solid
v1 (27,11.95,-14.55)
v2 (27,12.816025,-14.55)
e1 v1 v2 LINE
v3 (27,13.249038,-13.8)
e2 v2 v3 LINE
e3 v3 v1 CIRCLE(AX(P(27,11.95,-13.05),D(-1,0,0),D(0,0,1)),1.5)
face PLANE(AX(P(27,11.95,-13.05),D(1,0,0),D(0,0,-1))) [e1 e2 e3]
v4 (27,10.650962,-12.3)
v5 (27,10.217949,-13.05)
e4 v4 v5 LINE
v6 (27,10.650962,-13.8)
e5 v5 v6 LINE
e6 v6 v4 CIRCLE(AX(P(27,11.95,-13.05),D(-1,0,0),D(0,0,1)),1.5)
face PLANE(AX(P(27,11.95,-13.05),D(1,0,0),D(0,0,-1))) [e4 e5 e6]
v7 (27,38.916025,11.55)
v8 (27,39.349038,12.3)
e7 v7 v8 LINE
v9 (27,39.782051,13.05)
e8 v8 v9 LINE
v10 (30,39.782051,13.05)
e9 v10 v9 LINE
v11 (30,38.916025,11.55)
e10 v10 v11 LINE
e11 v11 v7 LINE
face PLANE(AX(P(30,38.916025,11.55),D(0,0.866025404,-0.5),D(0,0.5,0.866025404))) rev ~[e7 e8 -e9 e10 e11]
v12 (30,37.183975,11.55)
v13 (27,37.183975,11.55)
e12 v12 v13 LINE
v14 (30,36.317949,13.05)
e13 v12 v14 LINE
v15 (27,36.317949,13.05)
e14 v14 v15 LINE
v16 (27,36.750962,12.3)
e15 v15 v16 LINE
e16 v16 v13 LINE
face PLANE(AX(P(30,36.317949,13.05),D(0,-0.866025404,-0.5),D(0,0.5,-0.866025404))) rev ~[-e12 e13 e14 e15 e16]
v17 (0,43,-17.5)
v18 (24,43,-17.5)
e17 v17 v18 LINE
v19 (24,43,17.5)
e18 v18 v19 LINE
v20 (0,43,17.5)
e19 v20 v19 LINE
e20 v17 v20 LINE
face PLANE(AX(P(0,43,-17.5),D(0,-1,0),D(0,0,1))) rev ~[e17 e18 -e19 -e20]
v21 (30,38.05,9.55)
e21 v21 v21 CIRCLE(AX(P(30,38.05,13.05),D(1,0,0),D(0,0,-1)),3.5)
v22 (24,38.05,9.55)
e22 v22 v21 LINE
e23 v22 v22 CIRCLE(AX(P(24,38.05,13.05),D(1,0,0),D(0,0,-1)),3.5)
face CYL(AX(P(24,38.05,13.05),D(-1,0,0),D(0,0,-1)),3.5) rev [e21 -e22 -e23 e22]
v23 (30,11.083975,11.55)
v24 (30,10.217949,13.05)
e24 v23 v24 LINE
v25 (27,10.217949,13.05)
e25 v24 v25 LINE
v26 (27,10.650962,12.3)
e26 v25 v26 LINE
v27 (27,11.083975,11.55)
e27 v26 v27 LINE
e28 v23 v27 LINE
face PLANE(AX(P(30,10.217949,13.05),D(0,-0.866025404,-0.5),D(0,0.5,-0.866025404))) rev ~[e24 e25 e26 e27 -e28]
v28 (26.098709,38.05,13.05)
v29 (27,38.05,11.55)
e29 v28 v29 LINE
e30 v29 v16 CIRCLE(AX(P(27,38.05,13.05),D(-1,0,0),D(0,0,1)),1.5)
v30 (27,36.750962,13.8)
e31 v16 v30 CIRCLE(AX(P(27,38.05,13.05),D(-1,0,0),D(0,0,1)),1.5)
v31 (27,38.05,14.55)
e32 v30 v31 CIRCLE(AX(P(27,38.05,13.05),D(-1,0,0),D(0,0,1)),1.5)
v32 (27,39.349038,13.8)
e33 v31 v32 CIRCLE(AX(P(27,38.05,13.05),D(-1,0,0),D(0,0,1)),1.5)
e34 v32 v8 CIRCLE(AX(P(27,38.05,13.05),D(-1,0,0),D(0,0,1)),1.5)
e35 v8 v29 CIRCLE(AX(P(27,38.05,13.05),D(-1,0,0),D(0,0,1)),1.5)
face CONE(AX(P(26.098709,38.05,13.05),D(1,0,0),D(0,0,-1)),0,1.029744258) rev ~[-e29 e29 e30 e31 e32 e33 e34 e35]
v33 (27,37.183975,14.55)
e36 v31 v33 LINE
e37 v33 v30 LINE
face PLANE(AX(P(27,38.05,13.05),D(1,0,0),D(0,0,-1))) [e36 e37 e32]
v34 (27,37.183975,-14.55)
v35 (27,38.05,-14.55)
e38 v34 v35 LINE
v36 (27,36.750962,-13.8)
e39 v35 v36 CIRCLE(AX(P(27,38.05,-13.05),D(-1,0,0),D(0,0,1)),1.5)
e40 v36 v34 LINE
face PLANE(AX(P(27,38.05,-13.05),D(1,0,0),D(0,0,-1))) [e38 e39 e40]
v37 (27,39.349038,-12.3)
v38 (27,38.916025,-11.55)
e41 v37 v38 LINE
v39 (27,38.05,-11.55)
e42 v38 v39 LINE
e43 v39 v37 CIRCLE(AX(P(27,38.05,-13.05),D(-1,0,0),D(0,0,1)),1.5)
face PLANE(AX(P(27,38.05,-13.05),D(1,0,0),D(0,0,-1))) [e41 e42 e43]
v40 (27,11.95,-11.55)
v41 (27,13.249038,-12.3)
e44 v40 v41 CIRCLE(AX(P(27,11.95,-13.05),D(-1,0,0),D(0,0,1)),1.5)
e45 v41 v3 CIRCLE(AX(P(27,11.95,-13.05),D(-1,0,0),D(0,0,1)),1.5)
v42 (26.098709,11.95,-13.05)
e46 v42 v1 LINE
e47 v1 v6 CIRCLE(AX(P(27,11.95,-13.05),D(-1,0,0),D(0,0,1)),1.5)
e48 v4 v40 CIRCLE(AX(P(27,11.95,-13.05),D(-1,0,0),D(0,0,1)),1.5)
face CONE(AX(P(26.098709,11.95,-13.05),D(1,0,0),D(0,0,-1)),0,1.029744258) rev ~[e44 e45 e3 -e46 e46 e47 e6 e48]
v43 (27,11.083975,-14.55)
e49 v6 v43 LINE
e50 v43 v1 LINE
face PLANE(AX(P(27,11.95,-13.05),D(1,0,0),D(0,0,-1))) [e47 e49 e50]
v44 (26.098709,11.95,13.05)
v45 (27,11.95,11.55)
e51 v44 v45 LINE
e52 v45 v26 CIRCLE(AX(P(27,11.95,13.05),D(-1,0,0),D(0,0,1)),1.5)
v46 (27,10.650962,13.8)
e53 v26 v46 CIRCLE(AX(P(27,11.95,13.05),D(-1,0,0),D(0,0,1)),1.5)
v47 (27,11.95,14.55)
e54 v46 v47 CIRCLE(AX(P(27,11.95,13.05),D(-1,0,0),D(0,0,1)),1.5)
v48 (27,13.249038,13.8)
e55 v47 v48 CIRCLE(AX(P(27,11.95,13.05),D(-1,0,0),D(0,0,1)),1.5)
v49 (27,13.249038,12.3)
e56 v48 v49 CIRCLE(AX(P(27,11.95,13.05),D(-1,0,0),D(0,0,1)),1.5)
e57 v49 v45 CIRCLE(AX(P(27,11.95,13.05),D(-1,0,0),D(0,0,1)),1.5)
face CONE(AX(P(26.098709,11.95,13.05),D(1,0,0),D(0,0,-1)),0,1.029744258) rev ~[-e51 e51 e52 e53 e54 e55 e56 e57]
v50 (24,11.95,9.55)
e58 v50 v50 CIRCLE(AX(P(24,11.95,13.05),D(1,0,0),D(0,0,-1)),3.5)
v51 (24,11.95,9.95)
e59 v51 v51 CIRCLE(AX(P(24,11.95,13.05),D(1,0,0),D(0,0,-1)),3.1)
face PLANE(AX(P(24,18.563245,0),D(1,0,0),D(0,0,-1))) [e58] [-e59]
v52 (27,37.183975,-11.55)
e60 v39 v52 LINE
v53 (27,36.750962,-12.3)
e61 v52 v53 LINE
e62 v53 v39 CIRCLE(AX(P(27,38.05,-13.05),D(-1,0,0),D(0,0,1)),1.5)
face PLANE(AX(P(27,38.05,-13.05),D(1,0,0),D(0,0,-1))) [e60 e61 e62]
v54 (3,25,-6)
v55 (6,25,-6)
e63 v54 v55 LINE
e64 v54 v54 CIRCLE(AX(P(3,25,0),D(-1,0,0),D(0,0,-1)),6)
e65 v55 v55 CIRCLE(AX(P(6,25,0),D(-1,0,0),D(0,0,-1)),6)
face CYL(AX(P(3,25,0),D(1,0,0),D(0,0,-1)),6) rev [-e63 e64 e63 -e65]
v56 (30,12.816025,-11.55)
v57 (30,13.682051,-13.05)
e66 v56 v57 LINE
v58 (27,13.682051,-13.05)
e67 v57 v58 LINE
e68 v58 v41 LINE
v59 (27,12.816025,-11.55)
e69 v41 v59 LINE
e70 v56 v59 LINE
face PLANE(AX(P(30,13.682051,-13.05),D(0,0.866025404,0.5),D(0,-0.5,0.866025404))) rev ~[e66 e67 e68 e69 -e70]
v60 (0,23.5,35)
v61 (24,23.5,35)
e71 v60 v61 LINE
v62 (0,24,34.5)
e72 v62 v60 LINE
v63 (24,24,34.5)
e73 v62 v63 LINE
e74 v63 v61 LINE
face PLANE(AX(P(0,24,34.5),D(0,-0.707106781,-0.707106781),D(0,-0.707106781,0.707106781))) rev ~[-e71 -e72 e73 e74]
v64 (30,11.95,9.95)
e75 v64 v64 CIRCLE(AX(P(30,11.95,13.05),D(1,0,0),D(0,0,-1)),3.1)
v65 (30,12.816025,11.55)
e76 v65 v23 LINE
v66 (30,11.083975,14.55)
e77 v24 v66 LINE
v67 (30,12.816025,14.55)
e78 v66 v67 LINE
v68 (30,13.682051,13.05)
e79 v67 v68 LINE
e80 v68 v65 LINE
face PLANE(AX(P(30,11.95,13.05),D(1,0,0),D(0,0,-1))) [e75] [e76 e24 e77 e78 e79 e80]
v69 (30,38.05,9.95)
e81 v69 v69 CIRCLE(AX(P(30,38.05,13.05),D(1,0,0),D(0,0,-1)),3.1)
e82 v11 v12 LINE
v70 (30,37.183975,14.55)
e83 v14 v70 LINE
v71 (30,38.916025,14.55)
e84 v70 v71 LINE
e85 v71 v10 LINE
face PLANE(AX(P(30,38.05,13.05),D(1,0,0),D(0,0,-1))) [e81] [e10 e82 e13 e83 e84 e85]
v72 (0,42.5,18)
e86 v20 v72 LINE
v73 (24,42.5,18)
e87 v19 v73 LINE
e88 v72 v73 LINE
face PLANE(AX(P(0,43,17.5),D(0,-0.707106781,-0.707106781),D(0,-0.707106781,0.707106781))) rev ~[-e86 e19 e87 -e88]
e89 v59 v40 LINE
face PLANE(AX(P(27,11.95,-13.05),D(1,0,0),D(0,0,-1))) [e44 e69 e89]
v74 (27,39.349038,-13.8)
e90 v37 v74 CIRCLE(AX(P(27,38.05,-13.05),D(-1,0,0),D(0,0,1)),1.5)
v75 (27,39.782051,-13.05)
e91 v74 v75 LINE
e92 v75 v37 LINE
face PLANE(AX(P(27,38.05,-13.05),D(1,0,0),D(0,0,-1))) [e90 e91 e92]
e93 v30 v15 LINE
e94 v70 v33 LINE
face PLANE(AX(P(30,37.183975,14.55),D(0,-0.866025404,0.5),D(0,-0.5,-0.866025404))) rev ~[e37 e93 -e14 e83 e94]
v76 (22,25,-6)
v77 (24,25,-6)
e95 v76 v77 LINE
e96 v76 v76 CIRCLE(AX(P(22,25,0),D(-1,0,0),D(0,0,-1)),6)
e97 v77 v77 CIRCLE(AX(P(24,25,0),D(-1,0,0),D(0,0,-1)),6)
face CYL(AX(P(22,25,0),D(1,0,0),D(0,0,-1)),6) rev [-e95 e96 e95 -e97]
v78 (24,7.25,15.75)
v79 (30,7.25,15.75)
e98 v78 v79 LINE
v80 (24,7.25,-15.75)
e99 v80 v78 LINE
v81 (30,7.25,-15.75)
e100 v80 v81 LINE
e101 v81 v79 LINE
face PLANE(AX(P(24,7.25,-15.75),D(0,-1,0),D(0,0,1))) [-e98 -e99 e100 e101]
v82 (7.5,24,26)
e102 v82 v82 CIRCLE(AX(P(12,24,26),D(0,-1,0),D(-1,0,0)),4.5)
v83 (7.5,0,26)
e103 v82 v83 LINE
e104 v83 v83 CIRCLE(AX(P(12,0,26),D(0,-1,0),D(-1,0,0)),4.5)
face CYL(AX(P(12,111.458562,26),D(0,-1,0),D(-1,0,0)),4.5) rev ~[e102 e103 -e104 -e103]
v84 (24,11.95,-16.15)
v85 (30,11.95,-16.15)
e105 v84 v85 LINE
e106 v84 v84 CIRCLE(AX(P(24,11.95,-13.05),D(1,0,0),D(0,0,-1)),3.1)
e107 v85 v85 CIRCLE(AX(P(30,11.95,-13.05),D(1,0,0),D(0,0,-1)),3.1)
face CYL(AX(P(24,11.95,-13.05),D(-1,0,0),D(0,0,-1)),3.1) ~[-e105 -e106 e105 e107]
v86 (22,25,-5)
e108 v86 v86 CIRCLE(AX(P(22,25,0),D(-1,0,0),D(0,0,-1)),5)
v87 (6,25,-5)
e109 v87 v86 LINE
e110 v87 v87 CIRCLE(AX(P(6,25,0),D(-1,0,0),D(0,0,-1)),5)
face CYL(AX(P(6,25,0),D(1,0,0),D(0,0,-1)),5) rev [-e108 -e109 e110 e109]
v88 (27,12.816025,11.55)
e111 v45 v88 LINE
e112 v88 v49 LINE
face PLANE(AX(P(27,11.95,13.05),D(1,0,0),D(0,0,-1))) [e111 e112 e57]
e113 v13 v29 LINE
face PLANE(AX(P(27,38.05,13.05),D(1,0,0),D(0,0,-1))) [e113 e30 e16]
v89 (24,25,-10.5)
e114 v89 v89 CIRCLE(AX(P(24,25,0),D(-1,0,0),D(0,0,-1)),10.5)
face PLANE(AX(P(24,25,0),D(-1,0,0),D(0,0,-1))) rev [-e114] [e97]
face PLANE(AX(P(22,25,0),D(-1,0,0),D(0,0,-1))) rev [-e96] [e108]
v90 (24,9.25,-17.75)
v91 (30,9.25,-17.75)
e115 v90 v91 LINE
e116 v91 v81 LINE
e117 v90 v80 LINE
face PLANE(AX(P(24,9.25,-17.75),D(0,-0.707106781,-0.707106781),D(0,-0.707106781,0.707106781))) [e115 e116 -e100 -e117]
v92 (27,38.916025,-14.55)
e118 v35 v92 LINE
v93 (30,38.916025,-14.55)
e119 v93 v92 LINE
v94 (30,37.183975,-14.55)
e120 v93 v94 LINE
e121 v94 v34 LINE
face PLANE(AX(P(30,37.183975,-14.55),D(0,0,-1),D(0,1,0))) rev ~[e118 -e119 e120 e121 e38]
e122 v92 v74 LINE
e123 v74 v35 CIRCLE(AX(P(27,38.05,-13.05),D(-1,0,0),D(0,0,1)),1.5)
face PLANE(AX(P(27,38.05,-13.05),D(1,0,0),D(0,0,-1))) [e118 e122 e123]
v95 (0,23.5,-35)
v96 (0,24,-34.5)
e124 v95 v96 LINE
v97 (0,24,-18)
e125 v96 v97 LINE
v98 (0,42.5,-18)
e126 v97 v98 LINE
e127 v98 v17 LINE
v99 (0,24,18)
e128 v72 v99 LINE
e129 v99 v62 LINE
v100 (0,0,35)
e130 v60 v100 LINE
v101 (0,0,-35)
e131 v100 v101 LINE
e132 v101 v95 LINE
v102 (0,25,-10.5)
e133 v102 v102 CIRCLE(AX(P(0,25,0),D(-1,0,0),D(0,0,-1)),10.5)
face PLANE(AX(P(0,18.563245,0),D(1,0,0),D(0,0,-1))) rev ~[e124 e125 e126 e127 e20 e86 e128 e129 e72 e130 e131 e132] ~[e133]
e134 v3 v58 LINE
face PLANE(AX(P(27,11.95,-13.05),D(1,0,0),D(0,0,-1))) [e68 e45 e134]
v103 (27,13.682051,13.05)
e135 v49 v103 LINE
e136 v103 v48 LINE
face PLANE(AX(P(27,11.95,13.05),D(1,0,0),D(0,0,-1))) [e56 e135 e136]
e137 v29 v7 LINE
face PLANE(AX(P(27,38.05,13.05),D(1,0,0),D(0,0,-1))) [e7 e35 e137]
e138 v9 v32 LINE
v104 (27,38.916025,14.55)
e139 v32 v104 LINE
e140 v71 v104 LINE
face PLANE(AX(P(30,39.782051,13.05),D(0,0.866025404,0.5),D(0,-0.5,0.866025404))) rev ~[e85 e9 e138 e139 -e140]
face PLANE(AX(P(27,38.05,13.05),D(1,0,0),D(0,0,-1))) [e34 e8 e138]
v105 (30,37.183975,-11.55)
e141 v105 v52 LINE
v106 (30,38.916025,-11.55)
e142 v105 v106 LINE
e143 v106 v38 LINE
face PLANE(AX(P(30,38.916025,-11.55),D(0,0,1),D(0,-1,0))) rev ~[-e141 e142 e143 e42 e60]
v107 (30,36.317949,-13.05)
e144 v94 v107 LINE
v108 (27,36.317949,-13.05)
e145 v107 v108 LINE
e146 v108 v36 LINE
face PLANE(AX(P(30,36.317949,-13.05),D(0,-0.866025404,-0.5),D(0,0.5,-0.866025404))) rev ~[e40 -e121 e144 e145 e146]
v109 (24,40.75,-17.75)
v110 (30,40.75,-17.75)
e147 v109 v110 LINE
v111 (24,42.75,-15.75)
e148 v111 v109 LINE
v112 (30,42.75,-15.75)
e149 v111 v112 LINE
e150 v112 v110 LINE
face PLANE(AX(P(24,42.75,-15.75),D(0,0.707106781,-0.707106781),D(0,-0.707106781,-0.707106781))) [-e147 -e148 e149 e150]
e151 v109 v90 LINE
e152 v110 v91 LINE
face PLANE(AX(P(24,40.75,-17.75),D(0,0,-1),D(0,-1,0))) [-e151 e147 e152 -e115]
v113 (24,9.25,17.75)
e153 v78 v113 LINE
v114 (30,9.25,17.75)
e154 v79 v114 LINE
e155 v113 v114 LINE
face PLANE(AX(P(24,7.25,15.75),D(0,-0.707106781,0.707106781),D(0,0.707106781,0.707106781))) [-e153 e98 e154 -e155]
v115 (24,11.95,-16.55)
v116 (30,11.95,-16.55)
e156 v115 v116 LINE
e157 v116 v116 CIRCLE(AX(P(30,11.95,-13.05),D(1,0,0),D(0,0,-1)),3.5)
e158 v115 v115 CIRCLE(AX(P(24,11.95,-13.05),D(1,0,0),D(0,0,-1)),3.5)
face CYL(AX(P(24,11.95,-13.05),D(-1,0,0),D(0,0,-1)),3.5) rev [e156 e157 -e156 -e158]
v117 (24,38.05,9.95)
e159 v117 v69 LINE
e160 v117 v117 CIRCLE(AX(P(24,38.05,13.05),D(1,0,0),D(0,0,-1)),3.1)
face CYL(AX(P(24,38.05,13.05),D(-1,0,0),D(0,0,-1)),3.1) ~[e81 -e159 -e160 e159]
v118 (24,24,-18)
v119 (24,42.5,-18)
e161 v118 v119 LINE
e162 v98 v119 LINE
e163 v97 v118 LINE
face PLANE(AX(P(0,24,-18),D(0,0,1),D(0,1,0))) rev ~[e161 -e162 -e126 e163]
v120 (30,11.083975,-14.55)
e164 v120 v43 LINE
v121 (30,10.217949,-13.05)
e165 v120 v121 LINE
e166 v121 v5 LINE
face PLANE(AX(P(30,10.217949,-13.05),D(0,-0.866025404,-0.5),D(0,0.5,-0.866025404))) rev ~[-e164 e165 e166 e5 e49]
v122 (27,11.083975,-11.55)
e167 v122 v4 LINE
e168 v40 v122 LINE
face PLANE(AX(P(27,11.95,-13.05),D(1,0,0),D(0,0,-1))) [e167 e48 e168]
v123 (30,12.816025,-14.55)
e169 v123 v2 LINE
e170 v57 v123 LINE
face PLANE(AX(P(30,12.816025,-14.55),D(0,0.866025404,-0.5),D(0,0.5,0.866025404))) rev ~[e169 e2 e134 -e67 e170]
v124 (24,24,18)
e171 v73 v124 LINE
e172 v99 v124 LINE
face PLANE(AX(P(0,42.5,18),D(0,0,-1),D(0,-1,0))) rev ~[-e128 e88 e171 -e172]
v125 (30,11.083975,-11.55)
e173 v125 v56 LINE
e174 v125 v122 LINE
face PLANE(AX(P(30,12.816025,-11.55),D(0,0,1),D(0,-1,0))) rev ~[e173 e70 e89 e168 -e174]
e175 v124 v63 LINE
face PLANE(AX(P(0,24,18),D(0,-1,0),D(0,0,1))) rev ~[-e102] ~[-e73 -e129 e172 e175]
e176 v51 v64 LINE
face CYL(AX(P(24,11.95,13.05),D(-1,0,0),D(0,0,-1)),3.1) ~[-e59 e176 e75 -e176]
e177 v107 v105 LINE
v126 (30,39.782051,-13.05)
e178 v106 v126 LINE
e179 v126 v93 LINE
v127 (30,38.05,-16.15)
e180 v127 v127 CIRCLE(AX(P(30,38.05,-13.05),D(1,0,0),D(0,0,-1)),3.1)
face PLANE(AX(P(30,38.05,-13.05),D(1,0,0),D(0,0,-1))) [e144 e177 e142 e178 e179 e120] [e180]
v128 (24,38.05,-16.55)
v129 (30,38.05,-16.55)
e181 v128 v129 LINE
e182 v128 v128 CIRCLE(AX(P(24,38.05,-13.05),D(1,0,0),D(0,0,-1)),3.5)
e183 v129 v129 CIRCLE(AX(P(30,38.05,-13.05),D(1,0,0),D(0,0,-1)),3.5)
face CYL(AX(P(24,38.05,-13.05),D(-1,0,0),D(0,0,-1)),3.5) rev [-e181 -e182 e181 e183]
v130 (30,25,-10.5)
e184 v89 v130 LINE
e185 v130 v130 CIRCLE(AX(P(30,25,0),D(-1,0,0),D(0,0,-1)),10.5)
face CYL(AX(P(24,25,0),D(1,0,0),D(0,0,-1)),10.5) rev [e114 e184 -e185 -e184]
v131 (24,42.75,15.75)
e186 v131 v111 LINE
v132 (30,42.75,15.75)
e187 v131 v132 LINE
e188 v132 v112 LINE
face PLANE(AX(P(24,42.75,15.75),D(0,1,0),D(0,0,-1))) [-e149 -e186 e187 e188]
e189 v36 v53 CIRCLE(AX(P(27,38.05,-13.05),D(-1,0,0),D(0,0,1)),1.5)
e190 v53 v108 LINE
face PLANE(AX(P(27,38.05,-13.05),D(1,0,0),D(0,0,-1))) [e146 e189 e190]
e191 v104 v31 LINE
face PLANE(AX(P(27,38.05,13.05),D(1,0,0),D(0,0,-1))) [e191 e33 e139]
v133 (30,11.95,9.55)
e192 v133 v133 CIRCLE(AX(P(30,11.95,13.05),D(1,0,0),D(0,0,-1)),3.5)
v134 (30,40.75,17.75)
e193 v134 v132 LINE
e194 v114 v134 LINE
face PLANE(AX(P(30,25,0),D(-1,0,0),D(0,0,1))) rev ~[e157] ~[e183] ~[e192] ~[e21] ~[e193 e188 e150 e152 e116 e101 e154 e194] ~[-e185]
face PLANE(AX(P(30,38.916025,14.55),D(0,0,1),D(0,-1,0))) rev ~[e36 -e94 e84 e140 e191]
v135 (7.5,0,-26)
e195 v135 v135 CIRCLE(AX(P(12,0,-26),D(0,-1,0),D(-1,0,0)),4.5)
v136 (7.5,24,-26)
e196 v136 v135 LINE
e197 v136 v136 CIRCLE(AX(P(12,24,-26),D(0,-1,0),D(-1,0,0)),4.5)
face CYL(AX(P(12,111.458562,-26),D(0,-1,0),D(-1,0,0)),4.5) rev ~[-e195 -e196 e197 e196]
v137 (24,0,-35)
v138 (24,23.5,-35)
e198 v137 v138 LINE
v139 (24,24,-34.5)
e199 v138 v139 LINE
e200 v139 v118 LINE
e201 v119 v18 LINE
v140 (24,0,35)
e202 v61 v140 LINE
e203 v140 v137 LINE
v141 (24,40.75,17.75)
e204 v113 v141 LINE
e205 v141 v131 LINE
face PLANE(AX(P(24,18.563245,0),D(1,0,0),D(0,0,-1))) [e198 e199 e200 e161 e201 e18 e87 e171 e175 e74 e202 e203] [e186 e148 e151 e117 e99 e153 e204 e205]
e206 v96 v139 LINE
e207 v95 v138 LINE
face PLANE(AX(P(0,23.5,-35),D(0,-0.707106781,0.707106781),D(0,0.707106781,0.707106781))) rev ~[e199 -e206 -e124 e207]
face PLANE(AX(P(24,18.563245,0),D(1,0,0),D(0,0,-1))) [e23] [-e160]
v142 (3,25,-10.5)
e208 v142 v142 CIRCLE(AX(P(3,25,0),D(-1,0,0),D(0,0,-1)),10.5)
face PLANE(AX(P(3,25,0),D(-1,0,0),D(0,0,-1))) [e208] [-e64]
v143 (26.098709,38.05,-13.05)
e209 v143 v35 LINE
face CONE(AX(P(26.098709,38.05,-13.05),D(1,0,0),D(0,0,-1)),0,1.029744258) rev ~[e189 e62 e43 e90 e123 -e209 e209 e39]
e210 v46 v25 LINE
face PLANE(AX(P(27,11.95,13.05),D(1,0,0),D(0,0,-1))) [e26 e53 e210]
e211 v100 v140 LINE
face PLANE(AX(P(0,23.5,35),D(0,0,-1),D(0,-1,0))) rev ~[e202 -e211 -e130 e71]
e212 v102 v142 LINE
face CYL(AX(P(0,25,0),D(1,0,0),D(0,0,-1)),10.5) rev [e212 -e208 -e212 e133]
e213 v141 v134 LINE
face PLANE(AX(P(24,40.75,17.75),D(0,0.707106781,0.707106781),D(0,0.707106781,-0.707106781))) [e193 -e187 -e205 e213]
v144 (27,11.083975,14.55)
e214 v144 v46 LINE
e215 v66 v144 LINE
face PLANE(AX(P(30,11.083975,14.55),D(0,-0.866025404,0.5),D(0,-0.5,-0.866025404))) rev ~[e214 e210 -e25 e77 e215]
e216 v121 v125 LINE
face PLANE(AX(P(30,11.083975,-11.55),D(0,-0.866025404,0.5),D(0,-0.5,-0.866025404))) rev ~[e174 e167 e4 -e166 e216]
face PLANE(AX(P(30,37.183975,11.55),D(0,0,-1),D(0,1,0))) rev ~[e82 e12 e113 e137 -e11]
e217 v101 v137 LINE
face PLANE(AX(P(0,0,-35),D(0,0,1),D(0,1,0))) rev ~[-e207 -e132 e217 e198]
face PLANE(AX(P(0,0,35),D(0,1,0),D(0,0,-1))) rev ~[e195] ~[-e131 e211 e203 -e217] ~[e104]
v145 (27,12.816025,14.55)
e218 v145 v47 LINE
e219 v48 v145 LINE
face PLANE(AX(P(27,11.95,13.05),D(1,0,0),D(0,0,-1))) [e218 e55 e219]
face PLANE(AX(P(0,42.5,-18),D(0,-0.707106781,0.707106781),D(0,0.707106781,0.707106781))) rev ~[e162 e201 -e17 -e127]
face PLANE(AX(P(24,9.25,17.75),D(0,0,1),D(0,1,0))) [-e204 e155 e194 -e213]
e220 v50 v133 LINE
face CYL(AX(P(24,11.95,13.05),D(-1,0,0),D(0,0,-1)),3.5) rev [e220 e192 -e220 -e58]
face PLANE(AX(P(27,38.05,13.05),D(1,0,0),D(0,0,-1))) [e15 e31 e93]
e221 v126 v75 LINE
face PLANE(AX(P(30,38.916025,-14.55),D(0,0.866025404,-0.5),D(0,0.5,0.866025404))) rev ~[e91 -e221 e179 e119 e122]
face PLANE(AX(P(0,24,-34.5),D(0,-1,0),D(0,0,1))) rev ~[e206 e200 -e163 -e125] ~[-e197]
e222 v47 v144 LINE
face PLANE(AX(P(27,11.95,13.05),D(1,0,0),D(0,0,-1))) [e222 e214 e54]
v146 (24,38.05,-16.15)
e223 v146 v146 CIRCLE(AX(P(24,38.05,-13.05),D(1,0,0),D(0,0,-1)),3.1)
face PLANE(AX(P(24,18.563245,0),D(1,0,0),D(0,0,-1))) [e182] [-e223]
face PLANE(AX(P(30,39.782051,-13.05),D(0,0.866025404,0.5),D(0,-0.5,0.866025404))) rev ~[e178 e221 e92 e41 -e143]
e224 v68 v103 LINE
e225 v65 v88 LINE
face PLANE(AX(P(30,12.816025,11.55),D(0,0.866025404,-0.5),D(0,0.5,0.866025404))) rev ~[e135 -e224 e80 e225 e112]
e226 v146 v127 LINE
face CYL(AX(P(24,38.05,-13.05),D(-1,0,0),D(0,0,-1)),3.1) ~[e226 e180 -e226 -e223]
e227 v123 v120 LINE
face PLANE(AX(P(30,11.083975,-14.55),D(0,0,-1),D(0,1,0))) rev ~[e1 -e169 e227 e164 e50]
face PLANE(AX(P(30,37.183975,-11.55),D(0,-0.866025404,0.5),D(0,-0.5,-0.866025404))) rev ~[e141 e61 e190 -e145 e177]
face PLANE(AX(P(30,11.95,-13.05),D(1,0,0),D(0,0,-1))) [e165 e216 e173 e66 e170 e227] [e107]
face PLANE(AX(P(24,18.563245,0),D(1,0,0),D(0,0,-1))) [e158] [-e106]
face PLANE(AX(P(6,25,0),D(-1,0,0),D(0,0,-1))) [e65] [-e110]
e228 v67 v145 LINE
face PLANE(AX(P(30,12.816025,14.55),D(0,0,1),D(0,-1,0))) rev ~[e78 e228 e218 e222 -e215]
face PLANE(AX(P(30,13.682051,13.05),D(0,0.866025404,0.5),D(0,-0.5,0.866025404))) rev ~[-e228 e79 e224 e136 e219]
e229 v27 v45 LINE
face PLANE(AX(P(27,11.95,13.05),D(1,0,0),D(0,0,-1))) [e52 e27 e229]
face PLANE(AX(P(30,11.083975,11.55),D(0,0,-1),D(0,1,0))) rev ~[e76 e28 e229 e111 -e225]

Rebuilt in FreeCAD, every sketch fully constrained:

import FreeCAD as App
import Part
import Sketcher
from FreeCAD import Vector
Q = App.Units.Quantity

doc = App.newDocument("Part")
body = doc.addObject("PartDesign::Body", "Body")

# Sketch on YZ plane
sketch1 = body.newObject("Sketcher::SketchObject", "Sketch")
sketch1.AttachmentSupport = (doc.getObject("YZ_Plane"), [""])
sketch1.MapMode = "FlatFace"
sketch1.addGeometry(Part.LineSegment(Vector(42.5, 18, 0), Vector(24, 18, 0)), False)
sketch1.addGeometry(Part.LineSegment(Vector(24, 18, 0), Vector(24, 34.5, 0)), False)
sketch1.addGeometry(Part.LineSegment(Vector(24, 34.5, 0), Vector(23.5, 35, 0)), False)
sketch1.addGeometry(Part.LineSegment(Vector(23.5, 35, 0), Vector(0, 35, 0)), False)
sketch1.addGeometry(Part.LineSegment(Vector(0, 35, 0), Vector(0, -35, 0)), False)
sketch1.addGeometry(Part.LineSegment(Vector(0, -35, 0), Vector(23.5, -35, 0)), False)
sketch1.addGeometry(Part.LineSegment(Vector(23.5, -35, 0), Vector(24, -34.5, 0)), False)
sketch1.addGeometry(Part.LineSegment(Vector(24, -34.5, 0), Vector(24, -18, 0)), False)
sketch1.addGeometry(Part.LineSegment(Vector(24, -18, 0), Vector(42.5, -18, 0)), False)
sketch1.addGeometry(Part.LineSegment(Vector(42.5, -18, 0), Vector(43, -17.5, 0)), False)
sketch1.addGeometry(Part.LineSegment(Vector(43, -17.5, 0), Vector(43, 17.5, 0)), False)
sketch1.addGeometry(Part.LineSegment(Vector(43, 17.5, 0), Vector(42.5, 18, 0)), False)
sketch1.addConstraint(Sketcher.Constraint("Coincident", 0, 2, 1, 1))
sketch1.addConstraint(Sketcher.Constraint("Coincident", 1, 2, 2, 1))
sketch1.addConstraint(Sketcher.Constraint("Coincident", 2, 2, 3, 1))
sketch1.addConstraint(Sketcher.Constraint("Coincident", 3, 2, 4, 1))
sketch1.addConstraint(Sketcher.Constraint("Coincident", 4, 2, 5, 1))
sketch1.addConstraint(Sketcher.Constraint("Coincident", 5, 2, 6, 1))
sketch1.addConstraint(Sketcher.Constraint("Coincident", 6, 2, 7, 1))
sketch1.addConstraint(Sketcher.Constraint("Coincident", 7, 2, 8, 1))
sketch1.addConstraint(Sketcher.Constraint("Coincident", 8, 2, 9, 1))
sketch1.addConstraint(Sketcher.Constraint("Coincident", 9, 2, 10, 1))
sketch1.addConstraint(Sketcher.Constraint("Coincident", 10, 2, 11, 1))
sketch1.addConstraint(Sketcher.Constraint("Coincident", 11, 2, 0, 1))
sketch1.addConstraint(Sketcher.Constraint("Horizontal", 0))
sketch1.addConstraint(Sketcher.Constraint("Vertical", 1))
sketch1.addConstraint(Sketcher.Constraint("Horizontal", 3))
sketch1.addConstraint(Sketcher.Constraint("Vertical", 4))
sketch1.addConstraint(Sketcher.Constraint("Horizontal", 5))
sketch1.addConstraint(Sketcher.Constraint("Vertical", 7))
sketch1.addConstraint(Sketcher.Constraint("Horizontal", 8))
sketch1.addConstraint(Sketcher.Constraint("Vertical", 10))
sketch1.addConstraint(Sketcher.Constraint("Symmetric", 3, 2, 4, 2, -1, 1))
sketch1.addConstraint(Sketcher.Constraint("Symmetric", 1, 2, 6, 2, -1))
sketch1.addConstraint(Sketcher.Constraint("Symmetric", 8, 2, 11, 2, -1))
sketch1.addConstraint(Sketcher.Constraint("Perpendicular", 2, 6))
sketch1.addConstraint(Sketcher.Constraint("Parallel", 6, 9))
sketch1.addConstraint(Sketcher.Constraint("Perpendicular", 9, 11))
sketch1.addConstraint(Sketcher.Constraint("Vertical", 2, 2, 5, 2))
sketch1.addConstraint(Sketcher.Constraint("Equal", 6, 9))
sketch1.addConstraint(Sketcher.Constraint("DistanceY", 4, 2, 4, 1, Q("70 mm")))
sketch1.addConstraint(Sketcher.Constraint("DistanceY", 10, 1, 10, 2, Q("35 mm")))
sketch1.addConstraint(Sketcher.Constraint("DistanceX", 0, 2, 0, 1, Q("18.5 mm")))
sketch1.addConstraint(Sketcher.Constraint("DistanceX", 3, 2, 3, 1, Q("23.5 mm")))
sketch1.addConstraint(Sketcher.Constraint("DistanceY", 1, 1, 1, 2, Q("16.5 mm")))
pad1 = body.newObject("PartDesign::Pad", "Pad")
pad1.Profile = sketch1
pad1.Length = 24

# Sketch on YZ plane
sketch2 = body.newObject("Sketcher::SketchObject", "Sketch001")
sketch2.AttachmentSupport = (doc.getObject("YZ_Plane"), [""])
sketch2.MapMode = "FlatFace"
sketch2.AttachmentOffset = App.Placement(Vector(0, 0, 24), App.Rotation())
sketch2.addGeometry(Part.LineSegment(Vector(42.75, 15.75, 0), Vector(40.75, 17.75, 0)), False)
sketch2.addGeometry(Part.LineSegment(Vector(40.75, 17.75, 0), Vector(9.25, 17.75, 0)), False)
sketch2.addGeometry(Part.LineSegment(Vector(9.25, 17.75, 0), Vector(7.25, 15.75, 0)), False)
sketch2.addGeometry(Part.LineSegment(Vector(7.25, 15.75, 0), Vector(7.25, -15.75, 0)), False)
sketch2.addGeometry(Part.LineSegment(Vector(7.25, -15.75, 0), Vector(9.25, -17.75, 0)), False)
sketch2.addGeometry(Part.LineSegment(Vector(9.25, -17.75, 0), Vector(40.75, -17.75, 0)), False)
sketch2.addGeometry(Part.LineSegment(Vector(40.75, -17.75, 0), Vector(42.75, -15.75, 0)), False)
sketch2.addGeometry(Part.LineSegment(Vector(42.75, -15.75, 0), Vector(42.75, 15.75, 0)), False)
sketch2.addGeometry(Part.Circle(Vector(11.95, -13.05, 0), Vector(0, 0, 1), 3.5), False)
sketch2.addGeometry(Part.Circle(Vector(11.95, 13.05, 0), Vector(0, 0, 1), 3.5), False)
sketch2.addGeometry(Part.Circle(Vector(38.05, -13.05, 0), Vector(0, 0, 1), 3.5), False)
sketch2.addGeometry(Part.Circle(Vector(38.05, 13.05, 0), Vector(0, 0, 1), 3.5), False)
sketch2.addConstraint(Sketcher.Constraint("Coincident", 0, 2, 1, 1))
sketch2.addConstraint(Sketcher.Constraint("Coincident", 1, 2, 2, 1))
sketch2.addConstraint(Sketcher.Constraint("Coincident", 2, 2, 3, 1))
sketch2.addConstraint(Sketcher.Constraint("Coincident", 3, 2, 4, 1))
sketch2.addConstraint(Sketcher.Constraint("Coincident", 4, 2, 5, 1))
sketch2.addConstraint(Sketcher.Constraint("Coincident", 5, 2, 6, 1))
sketch2.addConstraint(Sketcher.Constraint("Coincident", 6, 2, 7, 1))
sketch2.addConstraint(Sketcher.Constraint("Coincident", 7, 2, 0, 1))
sketch2.addConstraint(Sketcher.Constraint("Horizontal", 1))
sketch2.addConstraint(Sketcher.Constraint("Vertical", 3))
sketch2.addConstraint(Sketcher.Constraint("Horizontal", 5))
sketch2.addConstraint(Sketcher.Constraint("Vertical", 7))
sketch2.addConstraint(Sketcher.Constraint("Equal", 8, 9))
sketch2.addConstraint(Sketcher.Constraint("Equal", 9, 10))
sketch2.addConstraint(Sketcher.Constraint("Equal", 10, 11))
sketch2.addConstraint(Sketcher.Constraint("Symmetric", 8, 3, 9, 3, -1))
sketch2.addConstraint(Sketcher.Constraint("Symmetric", 10, 3, 11, 3, -1))
sketch2.addConstraint(Sketcher.Constraint("Symmetric", 1, 2, 4, 2, -1))
sketch2.addConstraint(Sketcher.Constraint("Perpendicular", 0, 2))
sketch2.addConstraint(Sketcher.Constraint("Perpendicular", 2, 4))
sketch2.addConstraint(Sketcher.Constraint("Perpendicular", 4, 6))
sketch2.addConstraint(Sketcher.Constraint("Horizontal", 8, 3, 10, 3))
sketch2.addConstraint(Sketcher.Constraint("Horizontal", 3, 2, 6, 2))
sketch2.addConstraint(Sketcher.Constraint("Horizontal", 2, 2, 7, 2))
sketch2.addConstraint(Sketcher.Constraint("Vertical", 0, 2, 5, 2))
sketch2.addConstraint(Sketcher.Constraint("Equal", 5, 3))
sketch2.addConstraint(Sketcher.Constraint("Diameter", 8, Q("7 mm")))
sketch2.addConstraint(Sketcher.Constraint("DistanceX", 1, 2, 1, 1, Q("31.5 mm")))
sketch2.addConstraint(Sketcher.Constraint("DistanceX", 2, 2, 1, 2, Q("2 mm")))
sketch2.addConstraint(Sketcher.Constraint("DistanceY", 8, 3, 9, 3, Q("26.1 mm")))
sketch2.addConstraint(Sketcher.Constraint("DistanceX", 8, 3, 10, 3, Q("26.1 mm")))
sketch2.addConstraint(Sketcher.Constraint("DistanceX", 11, 3, 0, 2, Q("2.7 mm")))
sketch2.addConstraint(Sketcher.Constraint("DistanceX", -1, 1, 8, 3, Q("11.95 mm")))
pad2 = body.newObject("PartDesign::Pad", "Pad001")
pad2.Profile = sketch2
pad2.Length = 6

# Sketch on YZ plane
sketch3 = body.newObject("Sketcher::SketchObject", "Sketch002")
sketch3.AttachmentSupport = (doc.getObject("YZ_Plane"), [""])
sketch3.MapMode = "FlatFace"
sketch3.AttachmentOffset = App.Placement(Vector(0, 0, 24), App.Rotation())
sketch3.addGeometry(Part.Circle(Vector(38.05, 13.05, 0), Vector(0, 0, 1), 3.1), False)
sketch3.addGeometry(Part.Circle(Vector(38.05, -13.05, 0), Vector(0, 0, 1), 3.1), False)
sketch3.addGeometry(Part.Circle(Vector(11.95, -13.05, 0), Vector(0, 0, 1), 3.1), False)
sketch3.addGeometry(Part.Circle(Vector(11.95, 13.05, 0), Vector(0, 0, 1), 3.1), False)
sketch3.addConstraint(Sketcher.Constraint("Equal", 0, 1))
sketch3.addConstraint(Sketcher.Constraint("Equal", 1, 2))
sketch3.addConstraint(Sketcher.Constraint("Equal", 2, 3))
sketch3.addConstraint(Sketcher.Constraint("Symmetric", 0, 3, 1, 3, -1))
sketch3.addConstraint(Sketcher.Constraint("Symmetric", 2, 3, 3, 3, -1))
sketch3.addConstraint(Sketcher.Constraint("Horizontal", 1, 3, 2, 3))
sketch3.addConstraint(Sketcher.Constraint("Diameter", 0, Q("6.2 mm")))
sketch3.addConstraint(Sketcher.Constraint("DistanceY", 1, 3, 0, 3, Q("26.1 mm")))
sketch3.addConstraint(Sketcher.Constraint("DistanceX", 2, 3, 1, 3, Q("26.1 mm")))
sketch3.addConstraint(Sketcher.Constraint("DistanceX", -1, 1, 0, 3, Q("38.05 mm")))
pad3 = body.newObject("PartDesign::Pad", "Pad002")
pad3.Profile = sketch3
pad3.Length = 6

# Sketch on YZ plane
sketch4 = body.newObject("Sketcher::SketchObject", "Sketch003")
sketch4.AttachmentSupport = (doc.getObject("YZ_Plane"), [""])
sketch4.MapMode = "FlatFace"
sketch4.AttachmentOffset = App.Placement(Vector(0, 0, 30), App.Rotation())
sketch4.addGeometry(Part.Circle(Vector(38.05, 13.05, 0), Vector(0, 0, 1), 1.5), False)
sketch4.addGeometry(Part.Circle(Vector(38.05, -13.05, 0), Vector(0, 0, 1), 1.5), False)
sketch4.addGeometry(Part.Circle(Vector(11.95, 13.05, 0), Vector(0, 0, 1), 1.5), False)
sketch4.addGeometry(Part.Circle(Vector(11.95, -13.05, 0), Vector(0, 0, 1), 1.5), False)
sketch4.addConstraint(Sketcher.Constraint("Equal", 0, 1))
sketch4.addConstraint(Sketcher.Constraint("Equal", 1, 2))
sketch4.addConstraint(Sketcher.Constraint("Equal", 2, 3))
sketch4.addConstraint(Sketcher.Constraint("Symmetric", 0, 3, 1, 3, -1))
sketch4.addConstraint(Sketcher.Constraint("Symmetric", 2, 3, 3, 3, -1))
sketch4.addConstraint(Sketcher.Constraint("Horizontal", 0, 3, 2, 3))
sketch4.addConstraint(Sketcher.Constraint("Diameter", 0, Q("3 mm")))
sketch4.addConstraint(Sketcher.Constraint("DistanceY", 1, 3, 0, 3, Q("26.1 mm")))
sketch4.addConstraint(Sketcher.Constraint("DistanceX", 2, 3, 0, 3, Q("26.1 mm")))
sketch4.addConstraint(Sketcher.Constraint("DistanceX", -1, 1, 0, 3, Q("38.05 mm")))
doc.recompute()
hole = body.newObject("PartDesign::Hole", "Hole")
hole.Profile = sketch4
hole.ThreadType = "None"
hole.Diameter = 3
hole.DepthType = "Dimension"
hole.Depth = 3
hole.DrillPoint = "Angled"
hole.DrillPointAngle = 118

# Sketch on YZ plane
sketch5 = body.newObject("Sketcher::SketchObject", "Sketch004")
sketch5.AttachmentSupport = (doc.getObject("YZ_Plane"), [""])
sketch5.MapMode = "FlatFace"
sketch5.AttachmentOffset = App.Placement(Vector(0, 0, 30), App.Rotation())
sketch5.addGeometry(Part.LineSegment(Vector(36.317949, 13.05, 0), Vector(37.183975, 11.55, 0)), False)
sketch5.addGeometry(Part.LineSegment(Vector(37.183975, 11.55, 0), Vector(38.916025, 11.55, 0)), False)
sketch5.addGeometry(Part.LineSegment(Vector(38.916025, 11.55, 0), Vector(39.782051, 13.05, 0)), False)
sketch5.addGeometry(Part.LineSegment(Vector(39.782051, 13.05, 0), Vector(38.916025, 14.55, 0)), False)
sketch5.addGeometry(Part.LineSegment(Vector(38.916025, 14.55, 0), Vector(37.183975, 14.55, 0)), False)
sketch5.addGeometry(Part.LineSegment(Vector(37.183975, 14.55, 0), Vector(36.317949, 13.05, 0)), False)
sketch5.addGeometry(Part.LineSegment(Vector(37.183975, -14.55, 0), Vector(38.916025, -14.55, 0)), False)
sketch5.addGeometry(Part.LineSegment(Vector(38.916025, -14.55, 0), Vector(39.782051, -13.05, 0)), False)
sketch5.addGeometry(Part.LineSegment(Vector(39.782051, -13.05, 0), Vector(38.916025, -11.55, 0)), False)
sketch5.addGeometry(Part.LineSegment(Vector(38.916025, -11.55, 0), Vector(37.183975, -11.55, 0)), False)
sketch5.addGeometry(Part.LineSegment(Vector(37.183975, -11.55, 0), Vector(36.317949, -13.05, 0)), False)
sketch5.addGeometry(Part.LineSegment(Vector(36.317949, -13.05, 0), Vector(37.183975, -14.55, 0)), False)
sketch5.addGeometry(Part.LineSegment(Vector(11.083975, 11.55, 0), Vector(12.816025, 11.55, 0)), False)
sketch5.addGeometry(Part.LineSegment(Vector(12.816025, 11.55, 0), Vector(13.682051, 13.05, 0)), False)
sketch5.addGeometry(Part.LineSegment(Vector(13.682051, 13.05, 0), Vector(12.816025, 14.55, 0)), False)
sketch5.addGeometry(Part.LineSegment(Vector(12.816025, 14.55, 0), Vector(11.083975, 14.55, 0)), False)
sketch5.addGeometry(Part.LineSegment(Vector(11.083975, 14.55, 0), Vector(10.217949, 13.05, 0)), False)
sketch5.addGeometry(Part.LineSegment(Vector(10.217949, 13.05, 0), Vector(11.083975, 11.55, 0)), False)
sketch5.addGeometry(Part.LineSegment(Vector(11.083975, -14.55, 0), Vector(12.816025, -14.55, 0)), False)
sketch5.addGeometry(Part.LineSegment(Vector(12.816025, -14.55, 0), Vector(13.682051, -13.05, 0)), False)
sketch5.addGeometry(Part.LineSegment(Vector(13.682051, -13.05, 0), Vector(12.816025, -11.55, 0)), False)
sketch5.addGeometry(Part.LineSegment(Vector(12.816025, -11.55, 0), Vector(11.083975, -11.55, 0)), False)
sketch5.addGeometry(Part.LineSegment(Vector(11.083975, -11.55, 0), Vector(10.217949, -13.05, 0)), False)
sketch5.addGeometry(Part.LineSegment(Vector(10.217949, -13.05, 0), Vector(11.083975, -14.55, 0)), False)
sketch5.addConstraint(Sketcher.Constraint("Coincident", 0, 2, 1, 1))
sketch5.addConstraint(Sketcher.Constraint("Coincident", 1, 2, 2, 1))
sketch5.addConstraint(Sketcher.Constraint("Coincident", 2, 2, 3, 1))
sketch5.addConstraint(Sketcher.Constraint("Coincident", 3, 2, 4, 1))
sketch5.addConstraint(Sketcher.Constraint("Coincident", 4, 2, 5, 1))
sketch5.addConstraint(Sketcher.Constraint("Coincident", 5, 2, 0, 1))
sketch5.addConstraint(Sketcher.Constraint("Coincident", 6, 2, 7, 1))
sketch5.addConstraint(Sketcher.Constraint("Coincident", 7, 2, 8, 1))
sketch5.addConstraint(Sketcher.Constraint("Coincident", 8, 2, 9, 1))
sketch5.addConstraint(Sketcher.Constraint("Coincident", 9, 2, 10, 1))
sketch5.addConstraint(Sketcher.Constraint("Coincident", 10, 2, 11, 1))
sketch5.addConstraint(Sketcher.Constraint("Coincident", 11, 2, 6, 1))
sketch5.addConstraint(Sketcher.Constraint("Coincident", 12, 2, 13, 1))
sketch5.addConstraint(Sketcher.Constraint("Coincident", 13, 2, 14, 1))
sketch5.addConstraint(Sketcher.Constraint("Coincident", 14, 2, 15, 1))
sketch5.addConstraint(Sketcher.Constraint("Coincident", 15, 2, 16, 1))
sketch5.addConstraint(Sketcher.Constraint("Coincident", 16, 2, 17, 1))
sketch5.addConstraint(Sketcher.Constraint("Coincident", 17, 2, 12, 1))
sketch5.addConstraint(Sketcher.Constraint("Coincident", 18, 2, 19, 1))
sketch5.addConstraint(Sketcher.Constraint("Coincident", 19, 2, 20, 1))
sketch5.addConstraint(Sketcher.Constraint("Coincident", 20, 2, 21, 1))
sketch5.addConstraint(Sketcher.Constraint("Coincident", 21, 2, 22, 1))
sketch5.addConstraint(Sketcher.Constraint("Coincident", 22, 2, 23, 1))
sketch5.addConstraint(Sketcher.Constraint("Coincident", 23, 2, 18, 1))
sketch5.addConstraint(Sketcher.Constraint("Horizontal", 1))
sketch5.addConstraint(Sketcher.Constraint("Horizontal", 4))
sketch5.addConstraint(Sketcher.Constraint("Horizontal", 6))
sketch5.addConstraint(Sketcher.Constraint("Horizontal", 9))
sketch5.addConstraint(Sketcher.Constraint("Horizontal", 12))
sketch5.addConstraint(Sketcher.Constraint("Horizontal", 15))
sketch5.addConstraint(Sketcher.Constraint("Horizontal", 18))
sketch5.addConstraint(Sketcher.Constraint("Horizontal", 21))
sketch5.addConstraint(Sketcher.Constraint("Symmetric", 3, 2, 6, 2, -1))
sketch5.addConstraint(Sketcher.Constraint("Symmetric", 2, 2, 7, 2, -1))
sketch5.addConstraint(Sketcher.Constraint("Symmetric", 1, 2, 8, 2, -1))
sketch5.addConstraint(Sketcher.Constraint("Symmetric", 5, 2, 10, 2, -1))
sketch5.addConstraint(Sketcher.Constraint("Symmetric", 14, 2, 18, 2, -1))
sketch5.addConstraint(Sketcher.Constraint("Symmetric", 13, 2, 19, 2, -1))
sketch5.addConstraint(Sketcher.Constraint("Symmetric", 12, 2, 20, 2, -1))
sketch5.addConstraint(Sketcher.Constraint("Symmetric", 16, 2, 22, 2, -1))
sketch5.addConstraint(Sketcher.Constraint("Parallel", 0, 3))
sketch5.addConstraint(Sketcher.Constraint("Parallel", 2, 5))
sketch5.addConstraint(Sketcher.Constraint("Parallel", 5, 7))
sketch5.addConstraint(Sketcher.Constraint("Parallel", 7, 10))
sketch5.addConstraint(Sketcher.Constraint("Parallel", 8, 11))
sketch5.addConstraint(Sketcher.Constraint("Parallel", 10, 13))
sketch5.addConstraint(Sketcher.Constraint("Parallel", 11, 14))
sketch5.addConstraint(Sketcher.Constraint("Parallel", 13, 16))
sketch5.addConstraint(Sketcher.Constraint("Parallel", 14, 17))
sketch5.addConstraint(Sketcher.Constraint("Parallel", 19, 22))
sketch5.addConstraint(Sketcher.Constraint("Parallel", 20, 23))
sketch5.addConstraint(Sketcher.Constraint("Horizontal", 2, 2, 5, 2))
sketch5.addConstraint(Sketcher.Constraint("Horizontal", 1, 2, 12, 2))
sketch5.addConstraint(Sketcher.Constraint("Horizontal", 5, 2, 13, 2))
sketch5.addConstraint(Sketcher.Constraint("Horizontal", 4, 2, 14, 2))
sketch5.addConstraint(Sketcher.Constraint("Horizontal", 13, 2, 16, 2))
sketch5.addConstraint(Sketcher.Constraint("Vertical", 1, 2, 3, 2))
sketch5.addConstraint(Sketcher.Constraint("Equal", 9, 12))
sketch5.addConstraint(Sketcher.Constraint("Angle", 0, Q("-60 deg")))
sketch5.addConstraint(Sketcher.Constraint("DistanceY", 1, 2, 3, 2, Q("3 mm")))
sketch5.addConstraint(Sketcher.Constraint("DistanceY", 6, 2, 1, 2, Q("26.1 mm")))
sketch5.addConstraint(Sketcher.Constraint("DistanceX", 12, 2, 1, 2, Q("26.1 mm")))
sketch5.addConstraint(Sketcher.Constraint("DistanceX", 1, 1, 1, 2, Q("1.732051 mm")))
sketch5.addConstraint(Sketcher.Constraint("DistanceX", -1, 1, 2, 2, Q("39.782051 mm")))
pocket1 = body.newObject("PartDesign::Pocket", "Pocket")
pocket1.Profile = sketch5
pocket1.Length = 3

# Sketch on XY plane
sketch6 = body.newObject("Sketcher::SketchObject", "Sketch005")
sketch6.AttachmentSupport = (doc.getObject("XY_Plane"), [""])
sketch6.MapMode = "FlatFace"
sketch6.addGeometry(Part.LineSegment(Vector(3, 35.5, 0), Vector(0, 35.5, 0)), False)
sketch6.addGeometry(Part.LineSegment(Vector(0, 35.5, 0), Vector(0, 25, 0)), False)
sketch6.addGeometry(Part.LineSegment(Vector(0, 25, 0), Vector(30, 25, 0)), False)
sketch6.addGeometry(Part.LineSegment(Vector(30, 25, 0), Vector(30, 35.5, 0)), False)
sketch6.addGeometry(Part.LineSegment(Vector(30, 35.5, 0), Vector(24, 35.5, 0)), False)
sketch6.addGeometry(Part.LineSegment(Vector(24, 35.5, 0), Vector(24, 31, 0)), False)
sketch6.addGeometry(Part.LineSegment(Vector(24, 31, 0), Vector(22, 31, 0)), False)
sketch6.addGeometry(Part.LineSegment(Vector(22, 31, 0), Vector(22, 30, 0)), False)
sketch6.addGeometry(Part.LineSegment(Vector(22, 30, 0), Vector(6, 30, 0)), False)
sketch6.addGeometry(Part.LineSegment(Vector(6, 30, 0), Vector(6, 31, 0)), False)
sketch6.addGeometry(Part.LineSegment(Vector(6, 31, 0), Vector(3, 31, 0)), False)
sketch6.addGeometry(Part.LineSegment(Vector(3, 31, 0), Vector(3, 35.5, 0)), False)
sketch6.addGeometry(Part.LineSegment(Vector(30, 25, 0), Vector(0, 25, 0)), True)  # axis
sketch6.addConstraint(Sketcher.Constraint("Coincident", 0, 2, 1, 1))
sketch6.addConstraint(Sketcher.Constraint("Coincident", 1, 2, 2, 1))
sketch6.addConstraint(Sketcher.Constraint("Coincident", 2, 2, 3, 1))
sketch6.addConstraint(Sketcher.Constraint("Coincident", 3, 2, 4, 1))
sketch6.addConstraint(Sketcher.Constraint("Coincident", 4, 2, 5, 1))
sketch6.addConstraint(Sketcher.Constraint("Coincident", 5, 2, 6, 1))
sketch6.addConstraint(Sketcher.Constraint("Coincident", 6, 2, 7, 1))
sketch6.addConstraint(Sketcher.Constraint("Coincident", 7, 2, 8, 1))
sketch6.addConstraint(Sketcher.Constraint("Coincident", 8, 2, 9, 1))
sketch6.addConstraint(Sketcher.Constraint("Coincident", 9, 2, 10, 1))
sketch6.addConstraint(Sketcher.Constraint("Coincident", 10, 2, 11, 1))
sketch6.addConstraint(Sketcher.Constraint("Coincident", 11, 2, 0, 1))
sketch6.addConstraint(Sketcher.Constraint("Horizontal", 0))
sketch6.addConstraint(Sketcher.Constraint("Vertical", 1))
sketch6.addConstraint(Sketcher.Constraint("Horizontal", 2))
sketch6.addConstraint(Sketcher.Constraint("Vertical", 3))
sketch6.addConstraint(Sketcher.Constraint("Horizontal", 4))
sketch6.addConstraint(Sketcher.Constraint("Vertical", 5))
sketch6.addConstraint(Sketcher.Constraint("Horizontal", 6))
sketch6.addConstraint(Sketcher.Constraint("Vertical", 7))
sketch6.addConstraint(Sketcher.Constraint("Horizontal", 8))
sketch6.addConstraint(Sketcher.Constraint("Vertical", 9))
sketch6.addConstraint(Sketcher.Constraint("Horizontal", 10))
sketch6.addConstraint(Sketcher.Constraint("Vertical", 11))
sketch6.addConstraint(Sketcher.Constraint("Horizontal", 12))
sketch6.addConstraint(Sketcher.Constraint("Coincident", 12, 1, 2, 2))
sketch6.addConstraint(Sketcher.Constraint("PointOnObject", 0, 2, -2))
sketch6.addConstraint(Sketcher.Constraint("PointOnObject", 12, 2, -2))
sketch6.addConstraint(Sketcher.Constraint("Horizontal", 0, 2, 3, 2))
sketch6.addConstraint(Sketcher.Constraint("Horizontal", 6, 2, 9, 2))
sketch6.addConstraint(Sketcher.Constraint("Equal", 0, 10))
sketch6.addConstraint(Sketcher.Constraint("DistanceX", 0, 2, 0, 1, Q("3 mm")))
sketch6.addConstraint(Sketcher.Constraint("DistanceX", 2, 1, 2, 2, Q("30 mm")))
sketch6.addConstraint(Sketcher.Constraint("DistanceX", 4, 2, 4, 1, Q("6 mm")))
sketch6.addConstraint(Sketcher.Constraint("DistanceX", 6, 2, 6, 1, Q("2 mm")))
sketch6.addConstraint(Sketcher.Constraint("DistanceY", 7, 2, 7, 1, Q("1 mm")))
sketch6.addConstraint(Sketcher.Constraint("DistanceY", 1, 2, 1, 1, Q("10.5 mm")))
sketch6.addConstraint(Sketcher.Constraint("DistanceY", 5, 2, 5, 1, Q("4.5 mm")))
sketch6.addConstraint(Sketcher.Constraint("DistanceY", -1, 1, 1, 2, Q("25 mm")))
groove = body.newObject("PartDesign::Groove", "Groove")
groove.Profile = sketch6
groove.ReferenceAxis = (sketch6, ["Axis0"])
groove.Angle = 360

# Sketch on XZ plane
sketch7 = body.newObject("Sketcher::SketchObject", "Sketch006")
sketch7.AttachmentSupport = (doc.getObject("XZ_Plane"), [""])
sketch7.MapMode = "FlatFace"
sketch7.AttachmentOffset = App.Placement(Vector(0, 0, -24), App.Rotation())
sketch7.addGeometry(Part.Circle(Vector(12, 26, 0), Vector(0, 0, 1), 4.5), False)
sketch7.addGeometry(Part.Circle(Vector(12, -26, 0), Vector(0, 0, 1), 4.5), False)
sketch7.addConstraint(Sketcher.Constraint("Equal", 0, 1))
sketch7.addConstraint(Sketcher.Constraint("Symmetric", 0, 3, 1, 3, -1))
sketch7.addConstraint(Sketcher.Constraint("Diameter", 0, Q("9 mm")))
sketch7.addConstraint(Sketcher.Constraint("DistanceX", -1, 1, 0, 3, Q("12 mm")))
sketch7.addConstraint(Sketcher.Constraint("DistanceY", -1, 1, 0, 3, Q("26 mm")))
doc.recompute()
hole2 = body.newObject("PartDesign::Hole", "Hole001")
hole2.Profile = sketch7
hole2.ThreadType = "None"
hole2.Diameter = 9
hole2.DepthType = "ThroughAll"
hole2.Reversed = True

doc.recompute()
